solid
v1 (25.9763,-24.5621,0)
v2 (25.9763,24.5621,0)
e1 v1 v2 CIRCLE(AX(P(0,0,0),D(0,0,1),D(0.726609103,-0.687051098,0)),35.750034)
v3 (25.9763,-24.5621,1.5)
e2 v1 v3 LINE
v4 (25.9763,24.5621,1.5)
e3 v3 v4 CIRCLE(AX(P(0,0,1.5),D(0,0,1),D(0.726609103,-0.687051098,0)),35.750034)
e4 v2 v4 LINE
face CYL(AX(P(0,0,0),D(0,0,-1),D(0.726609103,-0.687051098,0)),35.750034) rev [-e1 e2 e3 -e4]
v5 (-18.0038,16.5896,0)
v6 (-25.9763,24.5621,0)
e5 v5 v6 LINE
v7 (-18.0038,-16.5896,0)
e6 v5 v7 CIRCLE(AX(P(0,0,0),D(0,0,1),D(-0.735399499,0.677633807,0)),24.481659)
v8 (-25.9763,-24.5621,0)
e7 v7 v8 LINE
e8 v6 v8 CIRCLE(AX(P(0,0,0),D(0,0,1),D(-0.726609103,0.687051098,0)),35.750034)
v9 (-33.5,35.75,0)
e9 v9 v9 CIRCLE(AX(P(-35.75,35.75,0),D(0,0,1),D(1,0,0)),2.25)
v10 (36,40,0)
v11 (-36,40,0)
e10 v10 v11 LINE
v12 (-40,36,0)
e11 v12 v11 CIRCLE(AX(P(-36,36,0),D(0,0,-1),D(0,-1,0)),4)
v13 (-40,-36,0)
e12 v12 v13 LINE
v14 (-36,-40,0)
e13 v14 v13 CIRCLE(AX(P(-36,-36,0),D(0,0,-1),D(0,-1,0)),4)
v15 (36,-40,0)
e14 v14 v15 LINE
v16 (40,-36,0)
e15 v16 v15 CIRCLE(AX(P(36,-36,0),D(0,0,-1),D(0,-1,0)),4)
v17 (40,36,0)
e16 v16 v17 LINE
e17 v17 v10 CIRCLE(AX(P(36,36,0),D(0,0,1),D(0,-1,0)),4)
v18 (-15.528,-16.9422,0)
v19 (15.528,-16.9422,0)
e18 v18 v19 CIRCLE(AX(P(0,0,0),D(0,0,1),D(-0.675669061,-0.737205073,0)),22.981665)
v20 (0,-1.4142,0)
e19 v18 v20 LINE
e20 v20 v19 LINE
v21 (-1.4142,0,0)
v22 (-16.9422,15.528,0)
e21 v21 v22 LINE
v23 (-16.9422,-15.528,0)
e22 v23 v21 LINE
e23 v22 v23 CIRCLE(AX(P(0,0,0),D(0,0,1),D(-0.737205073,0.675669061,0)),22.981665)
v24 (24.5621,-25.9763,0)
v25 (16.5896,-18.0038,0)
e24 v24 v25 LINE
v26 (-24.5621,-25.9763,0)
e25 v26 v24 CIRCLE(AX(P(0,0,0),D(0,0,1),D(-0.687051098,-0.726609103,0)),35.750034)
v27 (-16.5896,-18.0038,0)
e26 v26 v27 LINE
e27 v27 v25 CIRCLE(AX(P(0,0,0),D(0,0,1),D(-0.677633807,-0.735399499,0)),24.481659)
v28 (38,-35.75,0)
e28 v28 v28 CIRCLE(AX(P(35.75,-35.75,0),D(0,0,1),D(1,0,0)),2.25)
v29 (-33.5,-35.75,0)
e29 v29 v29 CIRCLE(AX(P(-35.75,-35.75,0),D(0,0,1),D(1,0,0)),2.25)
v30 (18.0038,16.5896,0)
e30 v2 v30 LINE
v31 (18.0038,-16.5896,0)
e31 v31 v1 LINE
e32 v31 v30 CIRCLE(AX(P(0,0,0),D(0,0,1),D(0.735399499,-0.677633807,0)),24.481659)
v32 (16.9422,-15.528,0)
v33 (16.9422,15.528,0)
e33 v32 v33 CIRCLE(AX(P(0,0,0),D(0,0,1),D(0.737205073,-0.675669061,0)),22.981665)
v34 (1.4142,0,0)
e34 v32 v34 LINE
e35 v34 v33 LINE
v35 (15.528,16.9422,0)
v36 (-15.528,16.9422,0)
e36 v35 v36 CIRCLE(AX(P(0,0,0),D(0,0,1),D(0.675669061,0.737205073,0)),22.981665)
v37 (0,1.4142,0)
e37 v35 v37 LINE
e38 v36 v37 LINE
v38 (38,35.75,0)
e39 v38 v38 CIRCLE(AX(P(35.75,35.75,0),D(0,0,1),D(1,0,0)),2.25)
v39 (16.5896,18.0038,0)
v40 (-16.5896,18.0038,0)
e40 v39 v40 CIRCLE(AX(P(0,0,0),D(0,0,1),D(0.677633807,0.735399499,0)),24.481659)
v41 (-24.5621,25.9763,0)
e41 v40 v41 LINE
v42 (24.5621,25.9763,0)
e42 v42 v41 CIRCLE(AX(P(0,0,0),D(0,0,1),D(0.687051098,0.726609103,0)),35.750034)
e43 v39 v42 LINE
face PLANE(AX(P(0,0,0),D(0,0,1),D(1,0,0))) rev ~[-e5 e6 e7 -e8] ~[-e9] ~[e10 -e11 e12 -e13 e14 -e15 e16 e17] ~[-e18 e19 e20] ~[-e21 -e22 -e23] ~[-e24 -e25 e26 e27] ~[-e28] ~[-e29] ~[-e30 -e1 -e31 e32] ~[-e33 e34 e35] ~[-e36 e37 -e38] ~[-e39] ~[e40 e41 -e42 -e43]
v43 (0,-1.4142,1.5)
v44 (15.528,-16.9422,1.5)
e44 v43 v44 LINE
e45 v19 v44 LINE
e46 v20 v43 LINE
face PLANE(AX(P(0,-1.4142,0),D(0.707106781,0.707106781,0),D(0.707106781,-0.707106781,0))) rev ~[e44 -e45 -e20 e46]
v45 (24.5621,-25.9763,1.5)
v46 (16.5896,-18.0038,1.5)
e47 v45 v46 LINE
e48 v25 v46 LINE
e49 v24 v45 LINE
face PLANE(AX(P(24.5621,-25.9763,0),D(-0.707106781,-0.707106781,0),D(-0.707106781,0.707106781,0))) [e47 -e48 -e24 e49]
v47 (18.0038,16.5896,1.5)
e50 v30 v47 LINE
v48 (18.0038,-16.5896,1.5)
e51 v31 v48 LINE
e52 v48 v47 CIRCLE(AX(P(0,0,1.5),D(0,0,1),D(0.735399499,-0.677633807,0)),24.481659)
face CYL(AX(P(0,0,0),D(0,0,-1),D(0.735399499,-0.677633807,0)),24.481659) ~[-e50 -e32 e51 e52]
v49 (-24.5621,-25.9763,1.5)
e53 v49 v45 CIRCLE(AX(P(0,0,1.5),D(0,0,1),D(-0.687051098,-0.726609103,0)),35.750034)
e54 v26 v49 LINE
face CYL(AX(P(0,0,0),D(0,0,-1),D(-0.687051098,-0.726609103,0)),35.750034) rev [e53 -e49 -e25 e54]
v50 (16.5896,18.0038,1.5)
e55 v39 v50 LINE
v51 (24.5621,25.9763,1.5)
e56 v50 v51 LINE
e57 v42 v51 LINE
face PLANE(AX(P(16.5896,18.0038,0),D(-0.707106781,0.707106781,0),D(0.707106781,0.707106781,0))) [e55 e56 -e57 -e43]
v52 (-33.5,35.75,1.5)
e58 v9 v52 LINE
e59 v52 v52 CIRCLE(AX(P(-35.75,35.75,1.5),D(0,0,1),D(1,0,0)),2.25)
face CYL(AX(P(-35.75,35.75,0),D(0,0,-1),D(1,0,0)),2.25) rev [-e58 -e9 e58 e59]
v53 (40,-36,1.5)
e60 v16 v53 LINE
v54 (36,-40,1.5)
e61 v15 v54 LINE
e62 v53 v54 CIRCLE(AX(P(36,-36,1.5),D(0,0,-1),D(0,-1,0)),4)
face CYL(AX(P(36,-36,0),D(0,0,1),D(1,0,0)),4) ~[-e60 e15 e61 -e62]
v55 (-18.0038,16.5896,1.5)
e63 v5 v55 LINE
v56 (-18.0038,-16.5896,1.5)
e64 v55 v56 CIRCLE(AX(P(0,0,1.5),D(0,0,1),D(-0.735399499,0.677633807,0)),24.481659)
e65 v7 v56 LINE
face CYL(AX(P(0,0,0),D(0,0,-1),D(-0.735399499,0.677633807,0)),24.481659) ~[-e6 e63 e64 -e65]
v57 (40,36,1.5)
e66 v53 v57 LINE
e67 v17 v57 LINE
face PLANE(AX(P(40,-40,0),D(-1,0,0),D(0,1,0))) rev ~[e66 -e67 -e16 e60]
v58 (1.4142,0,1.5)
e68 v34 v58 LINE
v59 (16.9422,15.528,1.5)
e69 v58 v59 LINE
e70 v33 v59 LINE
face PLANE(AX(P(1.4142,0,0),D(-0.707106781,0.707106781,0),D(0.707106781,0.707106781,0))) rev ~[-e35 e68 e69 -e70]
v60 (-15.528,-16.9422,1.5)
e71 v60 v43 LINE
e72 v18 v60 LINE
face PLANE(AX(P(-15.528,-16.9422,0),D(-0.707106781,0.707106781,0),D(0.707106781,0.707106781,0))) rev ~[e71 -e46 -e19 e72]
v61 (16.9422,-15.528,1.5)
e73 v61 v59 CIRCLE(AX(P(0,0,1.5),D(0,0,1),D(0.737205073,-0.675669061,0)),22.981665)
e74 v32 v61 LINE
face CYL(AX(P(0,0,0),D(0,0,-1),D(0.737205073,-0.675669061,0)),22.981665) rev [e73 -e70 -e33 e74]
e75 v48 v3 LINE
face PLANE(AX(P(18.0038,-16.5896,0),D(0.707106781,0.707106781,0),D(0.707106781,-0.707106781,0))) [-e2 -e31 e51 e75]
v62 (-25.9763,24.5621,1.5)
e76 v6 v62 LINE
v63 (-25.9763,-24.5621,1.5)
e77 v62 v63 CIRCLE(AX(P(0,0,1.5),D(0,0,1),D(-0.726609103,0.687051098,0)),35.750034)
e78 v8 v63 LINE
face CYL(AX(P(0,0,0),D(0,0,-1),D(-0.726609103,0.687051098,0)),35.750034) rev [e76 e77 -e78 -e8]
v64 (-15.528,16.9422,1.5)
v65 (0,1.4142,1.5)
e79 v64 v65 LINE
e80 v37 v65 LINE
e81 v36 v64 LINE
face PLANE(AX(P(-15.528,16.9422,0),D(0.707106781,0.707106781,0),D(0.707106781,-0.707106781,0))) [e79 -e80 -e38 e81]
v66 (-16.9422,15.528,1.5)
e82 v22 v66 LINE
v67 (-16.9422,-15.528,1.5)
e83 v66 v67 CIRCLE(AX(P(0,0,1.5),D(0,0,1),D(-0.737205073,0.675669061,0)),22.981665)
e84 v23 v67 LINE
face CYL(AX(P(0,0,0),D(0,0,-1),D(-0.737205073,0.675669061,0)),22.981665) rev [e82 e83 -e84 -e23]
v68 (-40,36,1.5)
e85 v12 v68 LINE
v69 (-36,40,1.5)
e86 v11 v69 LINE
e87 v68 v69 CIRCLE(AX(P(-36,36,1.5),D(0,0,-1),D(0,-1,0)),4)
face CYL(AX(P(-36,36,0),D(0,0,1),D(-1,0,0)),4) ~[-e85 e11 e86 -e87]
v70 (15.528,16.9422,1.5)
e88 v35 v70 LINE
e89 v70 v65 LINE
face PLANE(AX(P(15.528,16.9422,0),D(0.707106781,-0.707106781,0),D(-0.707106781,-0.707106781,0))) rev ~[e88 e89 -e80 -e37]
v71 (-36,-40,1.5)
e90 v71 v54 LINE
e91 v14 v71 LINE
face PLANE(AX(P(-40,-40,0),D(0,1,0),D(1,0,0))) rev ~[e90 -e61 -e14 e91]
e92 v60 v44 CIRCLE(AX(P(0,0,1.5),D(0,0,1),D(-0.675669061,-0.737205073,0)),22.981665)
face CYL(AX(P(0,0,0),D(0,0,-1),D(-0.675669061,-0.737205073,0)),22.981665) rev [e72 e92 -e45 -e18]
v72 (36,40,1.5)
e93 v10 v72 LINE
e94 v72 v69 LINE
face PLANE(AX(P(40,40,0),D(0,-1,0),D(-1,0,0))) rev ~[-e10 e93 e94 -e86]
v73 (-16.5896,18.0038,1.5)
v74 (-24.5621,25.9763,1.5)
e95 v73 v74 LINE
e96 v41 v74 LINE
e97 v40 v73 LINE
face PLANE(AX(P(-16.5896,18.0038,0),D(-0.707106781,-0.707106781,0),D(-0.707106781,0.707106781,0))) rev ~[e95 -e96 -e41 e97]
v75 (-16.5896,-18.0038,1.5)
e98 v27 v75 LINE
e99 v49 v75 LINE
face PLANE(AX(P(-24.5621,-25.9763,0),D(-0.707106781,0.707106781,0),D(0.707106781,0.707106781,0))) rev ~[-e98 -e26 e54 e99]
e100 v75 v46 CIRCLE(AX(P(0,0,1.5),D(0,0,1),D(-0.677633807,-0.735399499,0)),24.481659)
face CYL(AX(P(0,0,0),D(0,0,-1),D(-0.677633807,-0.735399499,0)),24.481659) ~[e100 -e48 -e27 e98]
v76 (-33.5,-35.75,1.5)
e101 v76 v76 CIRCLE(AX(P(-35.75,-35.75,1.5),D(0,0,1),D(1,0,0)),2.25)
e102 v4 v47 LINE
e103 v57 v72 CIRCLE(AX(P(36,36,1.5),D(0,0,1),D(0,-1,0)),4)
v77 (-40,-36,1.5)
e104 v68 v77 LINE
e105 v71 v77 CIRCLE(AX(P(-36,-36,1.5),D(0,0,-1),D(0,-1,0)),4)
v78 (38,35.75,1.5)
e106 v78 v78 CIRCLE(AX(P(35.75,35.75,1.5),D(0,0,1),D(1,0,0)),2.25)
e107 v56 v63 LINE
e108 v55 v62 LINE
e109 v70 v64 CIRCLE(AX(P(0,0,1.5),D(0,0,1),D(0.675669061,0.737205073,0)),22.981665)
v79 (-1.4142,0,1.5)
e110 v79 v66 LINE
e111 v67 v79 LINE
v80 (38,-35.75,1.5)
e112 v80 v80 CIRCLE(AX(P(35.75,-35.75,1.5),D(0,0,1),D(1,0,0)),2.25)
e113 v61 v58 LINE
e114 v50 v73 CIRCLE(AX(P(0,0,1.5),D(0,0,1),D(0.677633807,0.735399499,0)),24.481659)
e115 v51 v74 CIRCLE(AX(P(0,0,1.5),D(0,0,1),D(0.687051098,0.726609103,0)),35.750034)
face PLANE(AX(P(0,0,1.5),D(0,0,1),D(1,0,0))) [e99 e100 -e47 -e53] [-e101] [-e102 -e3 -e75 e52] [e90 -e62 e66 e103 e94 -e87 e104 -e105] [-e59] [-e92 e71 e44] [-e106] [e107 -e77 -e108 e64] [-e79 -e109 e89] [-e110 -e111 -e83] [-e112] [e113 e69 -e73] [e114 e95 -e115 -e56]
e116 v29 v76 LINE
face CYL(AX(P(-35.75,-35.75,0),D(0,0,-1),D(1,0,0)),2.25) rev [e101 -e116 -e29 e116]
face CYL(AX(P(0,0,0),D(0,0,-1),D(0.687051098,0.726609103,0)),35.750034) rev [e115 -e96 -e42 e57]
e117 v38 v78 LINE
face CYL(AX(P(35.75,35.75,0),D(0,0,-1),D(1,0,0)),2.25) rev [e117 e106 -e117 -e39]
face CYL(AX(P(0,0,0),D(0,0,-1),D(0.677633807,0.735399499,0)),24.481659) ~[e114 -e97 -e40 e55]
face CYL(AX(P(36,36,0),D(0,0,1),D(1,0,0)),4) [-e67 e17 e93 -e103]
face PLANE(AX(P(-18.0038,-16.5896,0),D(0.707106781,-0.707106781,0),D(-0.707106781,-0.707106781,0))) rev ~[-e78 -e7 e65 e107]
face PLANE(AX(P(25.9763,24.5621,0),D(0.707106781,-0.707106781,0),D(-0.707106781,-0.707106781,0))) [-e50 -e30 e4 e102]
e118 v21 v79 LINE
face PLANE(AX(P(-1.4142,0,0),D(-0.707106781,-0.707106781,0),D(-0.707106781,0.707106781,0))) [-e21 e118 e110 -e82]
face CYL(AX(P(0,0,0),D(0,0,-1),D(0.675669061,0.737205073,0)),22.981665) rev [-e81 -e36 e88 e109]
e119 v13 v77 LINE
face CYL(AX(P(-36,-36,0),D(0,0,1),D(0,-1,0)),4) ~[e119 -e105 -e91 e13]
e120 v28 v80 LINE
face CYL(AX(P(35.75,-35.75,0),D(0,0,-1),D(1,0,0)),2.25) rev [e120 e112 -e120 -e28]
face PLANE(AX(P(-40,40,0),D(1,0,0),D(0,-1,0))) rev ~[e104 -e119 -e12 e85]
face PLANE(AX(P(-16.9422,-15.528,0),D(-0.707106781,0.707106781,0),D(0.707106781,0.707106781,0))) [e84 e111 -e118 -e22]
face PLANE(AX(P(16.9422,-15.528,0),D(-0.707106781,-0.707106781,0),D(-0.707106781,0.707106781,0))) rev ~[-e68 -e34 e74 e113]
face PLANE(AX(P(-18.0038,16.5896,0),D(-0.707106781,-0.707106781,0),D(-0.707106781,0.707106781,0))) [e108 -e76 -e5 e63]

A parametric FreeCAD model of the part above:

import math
import FreeCAD as App
import Part
import Sketcher
from FreeCAD import Vector


def edges_at(feature, points):
    """Names of the edges that pass closest to the given points."""
    edges = feature.Shape.Edges
    near = lambda p: min(range(len(edges)), key=lambda i: edges[i].distToShape(Part.Vertex(*p))[0])
    return sorted({f"Edge{near(p) + 1}" for p in points})

doc = App.newDocument("Part")
params = doc.addObject("Spreadsheet::Sheet", "Params")
for row, (alias, value) in enumerate([
    ("sketch1_diameter", "4.5 mm"),
    ("sketch1_width", "80 mm"),
    ("sketch1_radius", "35.75 mm"),
    ("sketch1_length", "21.96 mm"),
    ("pad1_length", "1.5 mm"),
    ("fillet_radius", "4 mm"),
], start=1):
    params.set(f"A{row}", alias)
    params.set(f"B{row}", "=" + value)
    params.setAlias(f"B{row}", alias)

body = doc.addObject("PartDesign::Body", "Body")

# Sketch on XY plane
sketch1 = body.newObject("Sketcher::SketchObject", "Sketch")
sketch1.AttachmentSupport = (doc.getObject("XY_Plane"), [""])
sketch1.MapMode = "FlatFace"
sketch1.addGeometry(Part.LineSegment(Vector(40, -40, 0), Vector(40, 40, 0)), False)
sketch1.addGeometry(Part.LineSegment(Vector(40, 40, 0), Vector(-40, 40, 0)), False)
sketch1.addGeometry(Part.LineSegment(Vector(-40, 40, 0), Vector(-40, -40, 0)), False)
sketch1.addGeometry(Part.LineSegment(Vector(-40, -40, 0), Vector(40, -40, 0)), False)
sketch1.addGeometry(Part.Circle(Vector(-35.8, -35.8, 0), Vector(0, 0, 1), 2.2), False)
sketch1.addGeometry(Part.LineSegment(Vector(-24.6, -26, 0), Vector(-16.6, -18, 0)), False)
sketch1.addGeometry(Part.ArcOfCircle(Part.Circle(Vector(0, 0, 0), Vector(0, 0, 1), 24.5), math.radians(-133), math.radians(-47)), False)
sketch1.addGeometry(Part.LineSegment(Vector(16.6, -18, 0), Vector(24.6, -26, 0)), False)
sketch1.addGeometry(Part.ArcOfCircle(Part.Circle(Vector(0, 0, 0), Vector(0, 0, 1), 35.8), math.radians(-133), math.radians(-47)), False)
sketch1.addGeometry(Part.Circle(Vector(35.8, -35.8, 0), Vector(0, 0, 1), 2.2), False)
sketch1.addGeometry(Part.ArcOfCircle(Part.Circle(Vector(0, 0, 0), Vector(0, 0, 1), 23), math.radians(-133), math.radians(-47)), False)
sketch1.addGeometry(Part.LineSegment(Vector(-15.5, -16.9, 0), Vector(0, -1.4, 0)), False)
sketch1.addGeometry(Part.LineSegment(Vector(0, -1.4, 0), Vector(15.5, -16.9, 0)), False)
sketch1.addGeometry(Part.LineSegment(Vector(-26, 24.6, 0), Vector(-18, 16.6, 0)), False)
sketch1.addGeometry(Part.ArcOfCircle(Part.Circle(Vector(0, 0, 0), Vector(0, 0, 1), 24.5), math.radians(137), math.radians(223)), False)
sketch1.addGeometry(Part.LineSegment(Vector(-18, -16.6, 0), Vector(-26, -24.6, 0)), False)
sketch1.addGeometry(Part.ArcOfCircle(Part.Circle(Vector(0, 0, 0), Vector(0, 0, 1), 35.8), math.radians(137), math.radians(223)), False)
sketch1.addGeometry(Part.ArcOfCircle(Part.Circle(Vector(0, 0, 0), Vector(0, 0, 1), 23), math.radians(137), math.radians(223)), False)
sketch1.addGeometry(Part.LineSegment(Vector(-16.9, 15.5, 0), Vector(-1.4, 0, 0)), False)
sketch1.addGeometry(Part.LineSegment(Vector(-1.4, 0, 0), Vector(-16.9, -15.5, 0)), False)
sketch1.addGeometry(Part.Circle(Vector(-35.8, 35.8, 0), Vector(0, 0, 1), 2.2), False)
sketch1.addGeometry(Part.ArcOfCircle(Part.Circle(Vector(0, 0, 0), Vector(0, 0, 1), 23), math.radians(-43), math.radians(43)), False)
sketch1.addGeometry(Part.LineSegment(Vector(16.9, -15.5, 0), Vector(1.4, 0, 0)), False)
sketch1.addGeometry(Part.LineSegment(Vector(1.4, 0, 0), Vector(16.9, 15.5, 0)), False)
sketch1.addGeometry(Part.ArcOfCircle(Part.Circle(Vector(0, 0, 0), Vector(0, 0, 1), 23), math.radians(47), math.radians(133)), False)
sketch1.addGeometry(Part.LineSegment(Vector(15.5, 16.9, 0), Vector(0, 1.4, 0)), False)
sketch1.addGeometry(Part.LineSegment(Vector(0, 1.4, 0), Vector(-15.5, 16.9, 0)), False)
sketch1.addGeometry(Part.LineSegment(Vector(26, -24.6, 0), Vector(18, -16.6, 0)), False)
sketch1.addGeometry(Part.ArcOfCircle(Part.Circle(Vector(0, 0, 0), Vector(0, 0, 1), 24.5), math.radians(-43), math.radians(43)), False)
sketch1.addGeometry(Part.LineSegment(Vector(18, 16.6, 0), Vector(26, 24.6, 0)), False)
sketch1.addGeometry(Part.ArcOfCircle(Part.Circle(Vector(0, 0, 0), Vector(0, 0, 1), 35.8), math.radians(-43), math.radians(43)), False)
sketch1.addGeometry(Part.LineSegment(Vector(24.6, 26, 0), Vector(16.6, 18, 0)), False)
sketch1.addGeometry(Part.ArcOfCircle(Part.Circle(Vector(0, 0, 0), Vector(0, 0, 1), 24.5), math.radians(47), math.radians(133)), False)
sketch1.addGeometry(Part.LineSegment(Vector(-16.6, 18, 0), Vector(-24.6, 26, 0)), False)
sketch1.addGeometry(Part.ArcOfCircle(Part.Circle(Vector(0, 0, 0), Vector(0, 0, 1), 35.8), math.radians(47), math.radians(133)), False)
sketch1.addGeometry(Part.Circle(Vector(35.8, 35.8, 0), Vector(0, 0, 1), 2.2), False)
sketch1.addConstraint(Sketcher.Constraint("Coincident", 0, 2, 1, 1))
sketch1.addConstraint(Sketcher.Constraint("Coincident", 1, 2, 2, 1))
sketch1.addConstraint(Sketcher.Constraint("Coincident", 2, 2, 3, 1))
sketch1.addConstraint(Sketcher.Constraint("Coincident", 3, 2, 0, 1))
sketch1.addConstraint(Sketcher.Constraint("Coincident", 5, 2, 6, 1))
sketch1.addConstraint(Sketcher.Constraint("Coincident", 6, 2, 7, 1))
sketch1.addConstraint(Sketcher.Constraint("Coincident", 7, 2, 8, 2))
sketch1.addConstraint(Sketcher.Constraint("Coincident", 8, 1, 5, 1))
sketch1.addConstraint(Sketcher.Constraint("Coincident", 10, 1, 11, 1))
sketch1.addConstraint(Sketcher.Constraint("Coincident", 11, 2, 12, 1))
sketch1.addConstraint(Sketcher.Constraint("Coincident", 12, 2, 10, 2))
sketch1.addConstraint(Sketcher.Constraint("Coincident", 13, 2, 14, 1))
sketch1.addConstraint(Sketcher.Constraint("Coincident", 14, 2, 15, 1))
sketch1.addConstraint(Sketcher.Constraint("Coincident", 15, 2, 16, 2))
sketch1.addConstraint(Sketcher.Constraint("Coincident", 16, 1, 13, 1))
sketch1.addConstraint(Sketcher.Constraint("Coincident", 17, 1, 18, 1))
sketch1.addConstraint(Sketcher.Constraint("Coincident", 18, 2, 19, 1))
sketch1.addConstraint(Sketcher.Constraint("Coincident", 19, 2, 17, 2))
sketch1.addConstraint(Sketcher.Constraint("Coincident", 21, 1, 22, 1))
sketch1.addConstraint(Sketcher.Constraint("Coincident", 22, 2, 23, 1))
sketch1.addConstraint(Sketcher.Constraint("Coincident", 23, 2, 21, 2))
sketch1.addConstraint(Sketcher.Constraint("Coincident", 24, 1, 25, 1))
sketch1.addConstraint(Sketcher.Constraint("Coincident", 25, 2, 26, 1))
sketch1.addConstraint(Sketcher.Constraint("Coincident", 26, 2, 24, 2))
sketch1.addConstraint(Sketcher.Constraint("Coincident", 27, 2, 28, 1))
sketch1.addConstraint(Sketcher.Constraint("Coincident", 28, 2, 29, 1))
sketch1.addConstraint(Sketcher.Constraint("Coincident", 29, 2, 30, 2))
sketch1.addConstraint(Sketcher.Constraint("Coincident", 30, 1, 27, 1))
sketch1.addConstraint(Sketcher.Constraint("Coincident", 31, 2, 32, 1))
sketch1.addConstraint(Sketcher.Constraint("Coincident", 32, 2, 33, 1))
sketch1.addConstraint(Sketcher.Constraint("Coincident", 33, 2, 34, 2))
sketch1.addConstraint(Sketcher.Constraint("Coincident", 34, 1, 31, 1))
sketch1.addConstraint(Sketcher.Constraint("Vertical", 0))
sketch1.addConstraint(Sketcher.Constraint("Horizontal", 1))
sketch1.addConstraint(Sketcher.Constraint("Vertical", 2))
sketch1.addConstraint(Sketcher.Constraint("Horizontal", 3))
sketch1.addConstraint(Sketcher.Constraint("Coincident", 6, 3, -1, 1))
sketch1.addConstraint(Sketcher.Constraint("Coincident", 8, 3, -1, 1))
sketch1.addConstraint(Sketcher.Constraint("Coincident", 10, 3, -1, 1))
sketch1.addConstraint(Sketcher.Constraint("Coincident", 14, 3, -1, 1))
sketch1.addConstraint(Sketcher.Constraint("Coincident", 16, 3, -1, 1))
sketch1.addConstraint(Sketcher.Constraint("Coincident", 17, 3, -1, 1))
sketch1.addConstraint(Sketcher.Constraint("Coincident", 21, 3, -1, 1))
sketch1.addConstraint(Sketcher.Constraint("Coincident", 24, 3, -1, 1))
sketch1.addConstraint(Sketcher.Constraint("Coincident", 28, 3, -1, 1))
sketch1.addConstraint(Sketcher.Constraint("Coincident", 30, 3, -1, 1))
sketch1.addConstraint(Sketcher.Constraint("Coincident", 32, 3, -1, 1))
sketch1.addConstraint(Sketcher.Constraint("Coincident", 34, 3, -1, 1))
sketch1.addConstraint(Sketcher.Constraint("Equal", 4, 9))
sketch1.addConstraint(Sketcher.Constraint("Equal", 6, 14))
sketch1.addConstraint(Sketcher.Constraint("Equal", 8, 16))
sketch1.addConstraint(Sketcher.Constraint("Equal", 10, 17))
sketch1.addConstraint(Sketcher.Constraint("Equal", 9, 20))
sketch1.addConstraint(Sketcher.Constraint("Equal", 17, 21))
sketch1.addConstraint(Sketcher.Constraint("Equal", 21, 24))
sketch1.addConstraint(Sketcher.Constraint("Equal", 14, 28))
sketch1.addConstraint(Sketcher.Constraint("Equal", 16, 30))
sketch1.addConstraint(Sketcher.Constraint("Equal", 28, 32))
sketch1.addConstraint(Sketcher.Constraint("Equal", 30, 34))
sketch1.addConstraint(Sketcher.Constraint("Equal", 20, 35))
sketch1.addConstraint(Sketcher.Constraint("Symmetric", 9, 3, 20, 3, -1, 1))
sketch1.addConstraint(Sketcher.Constraint("Symmetric", 4, 3, 35, 3, -1, 1))
sketch1.addConstraint(Sketcher.Constraint("Symmetric", 0, 2, 2, 2, -1, 1))
sketch1.addConstraint(Sketcher.Constraint("Symmetric", 18, 2, 22, 2, -1, 1))
sketch1.addConstraint(Sketcher.Constraint("Symmetric", 11, 2, 25, 2, -1, 1))
sketch1.addConstraint(Sketcher.Constraint("Symmetric", 4, 3, 9, 3, -2))
sketch1.addConstraint(Sketcher.Constraint("PointOnObject", 11, 2, -2))
sketch1.addConstraint(Sketcher.Constraint("PointOnObject", 18, 2, -1))
sketch1.addConstraint(Sketcher.Constraint("Perpendicular", 5, 7))
sketch1.addConstraint(Sketcher.Constraint("Perpendicular", 7, 11))
sketch1.addConstraint(Sketcher.Constraint("Perpendicular", 11, 12))
sketch1.addConstraint(Sketcher.Constraint("Parallel", 12, 13))
sketch1.addConstraint(Sketcher.Constraint("Perpendicular", 13, 15))
sketch1.addConstraint(Sketcher.Constraint("Perpendicular", 15, 18))
sketch1.addConstraint(Sketcher.Constraint("Perpendicular", 18, 19))
sketch1.addConstraint(Sketcher.Constraint("Perpendicular", 19, 22))
sketch1.addConstraint(Sketcher.Constraint("Perpendicular", 22, 23))
sketch1.addConstraint(Sketcher.Constraint("Parallel", 23, 25))
sketch1.addConstraint(Sketcher.Constraint("Perpendicular", 25, 26))
sketch1.addConstraint(Sketcher.Constraint("Parallel", 26, 27))
sketch1.addConstraint(Sketcher.Constraint("Perpendicular", 27, 29))
sketch1.addConstraint(Sketcher.Constraint("Parallel", 29, 31))
sketch1.addConstraint(Sketcher.Constraint("Perpendicular", 31, 33))
sketch1.addConstraint(Sketcher.Constraint("Horizontal", 5, 2, 6, 2))
sketch1.addConstraint(Sketcher.Constraint("Horizontal", 7, 2, 8, 1))
sketch1.addConstraint(Sketcher.Constraint("Horizontal", 14, 2, 27, 2))
sketch1.addConstraint(Sketcher.Constraint("Horizontal", 13, 2, 28, 2))
sketch1.addConstraint(Sketcher.Constraint("Horizontal", 31, 2, 32, 2))
sketch1.addConstraint(Sketcher.Constraint("Vertical", 13, 2, 14, 2))
sketch1.addConstraint(Sketcher.Constraint("Vertical", 6, 2, 31, 2))
sketch1.addConstraint(Sketcher.Constraint("Equal", 3, 0))
sketch1.addConstraint(Sketcher.Constraint("Equal", 7, 13))
sketch1.addConstraint(Sketcher.Constraint("Equal", 12, 18))
sketch1.addConstraint(Sketcher.Constraint("Diameter", 4, 4.5))
sketch1.addConstraint(Sketcher.Constraint("DistanceX", 1, 2, 1, 1, 80.0))
sketch1.addConstraint(Sketcher.Constraint("Radius", 8, 35.75))
sketch1.addConstraint(Sketcher.Constraint("Radius", 6, 24.4817))
sketch1.addConstraint(Sketcher.Constraint("Radius", 10, 22.9817))
sketch1.addConstraint(Sketcher.Constraint("DistanceX", 4, 3, 9, 3, 71.5))
sketch1.addConstraint(Sketcher.Constraint("Distance", 11, 21.96))
sketch1.addConstraint(Sketcher.Constraint("DistanceY", 4, 3, -1, 1, 35.75))
sketch1.addConstraint(Sketcher.Constraint("DistanceY", 15, 2, 10, 1, 7.62))
sketch1.setExpression("Constraints[93]", "Params.sketch1_diameter")
sketch1.setExpression("Constraints[94]", "Params.sketch1_width")
sketch1.setExpression("Constraints[95]", "Params.sketch1_radius")
sketch1.setExpression("Constraints[99]", "Params.sketch1_length")
pad1 = body.newObject("PartDesign::Pad", "Pad")
pad1.Profile = sketch1
pad1.setExpression("Length", "Params.pad1_length")
doc.recompute()

fillet = body.newObject("PartDesign::Fillet", "Fillet")
fillet.Base = (pad1, edges_at(pad1, [
    (-40, -40, 0.75),
    (40, -40, 0.75),
    (40, 40, 0.75),
    (-40, 40, 0.75),
]))
fillet.setExpression("Radius", "Params.fillet_radius")

doc.recompute()
